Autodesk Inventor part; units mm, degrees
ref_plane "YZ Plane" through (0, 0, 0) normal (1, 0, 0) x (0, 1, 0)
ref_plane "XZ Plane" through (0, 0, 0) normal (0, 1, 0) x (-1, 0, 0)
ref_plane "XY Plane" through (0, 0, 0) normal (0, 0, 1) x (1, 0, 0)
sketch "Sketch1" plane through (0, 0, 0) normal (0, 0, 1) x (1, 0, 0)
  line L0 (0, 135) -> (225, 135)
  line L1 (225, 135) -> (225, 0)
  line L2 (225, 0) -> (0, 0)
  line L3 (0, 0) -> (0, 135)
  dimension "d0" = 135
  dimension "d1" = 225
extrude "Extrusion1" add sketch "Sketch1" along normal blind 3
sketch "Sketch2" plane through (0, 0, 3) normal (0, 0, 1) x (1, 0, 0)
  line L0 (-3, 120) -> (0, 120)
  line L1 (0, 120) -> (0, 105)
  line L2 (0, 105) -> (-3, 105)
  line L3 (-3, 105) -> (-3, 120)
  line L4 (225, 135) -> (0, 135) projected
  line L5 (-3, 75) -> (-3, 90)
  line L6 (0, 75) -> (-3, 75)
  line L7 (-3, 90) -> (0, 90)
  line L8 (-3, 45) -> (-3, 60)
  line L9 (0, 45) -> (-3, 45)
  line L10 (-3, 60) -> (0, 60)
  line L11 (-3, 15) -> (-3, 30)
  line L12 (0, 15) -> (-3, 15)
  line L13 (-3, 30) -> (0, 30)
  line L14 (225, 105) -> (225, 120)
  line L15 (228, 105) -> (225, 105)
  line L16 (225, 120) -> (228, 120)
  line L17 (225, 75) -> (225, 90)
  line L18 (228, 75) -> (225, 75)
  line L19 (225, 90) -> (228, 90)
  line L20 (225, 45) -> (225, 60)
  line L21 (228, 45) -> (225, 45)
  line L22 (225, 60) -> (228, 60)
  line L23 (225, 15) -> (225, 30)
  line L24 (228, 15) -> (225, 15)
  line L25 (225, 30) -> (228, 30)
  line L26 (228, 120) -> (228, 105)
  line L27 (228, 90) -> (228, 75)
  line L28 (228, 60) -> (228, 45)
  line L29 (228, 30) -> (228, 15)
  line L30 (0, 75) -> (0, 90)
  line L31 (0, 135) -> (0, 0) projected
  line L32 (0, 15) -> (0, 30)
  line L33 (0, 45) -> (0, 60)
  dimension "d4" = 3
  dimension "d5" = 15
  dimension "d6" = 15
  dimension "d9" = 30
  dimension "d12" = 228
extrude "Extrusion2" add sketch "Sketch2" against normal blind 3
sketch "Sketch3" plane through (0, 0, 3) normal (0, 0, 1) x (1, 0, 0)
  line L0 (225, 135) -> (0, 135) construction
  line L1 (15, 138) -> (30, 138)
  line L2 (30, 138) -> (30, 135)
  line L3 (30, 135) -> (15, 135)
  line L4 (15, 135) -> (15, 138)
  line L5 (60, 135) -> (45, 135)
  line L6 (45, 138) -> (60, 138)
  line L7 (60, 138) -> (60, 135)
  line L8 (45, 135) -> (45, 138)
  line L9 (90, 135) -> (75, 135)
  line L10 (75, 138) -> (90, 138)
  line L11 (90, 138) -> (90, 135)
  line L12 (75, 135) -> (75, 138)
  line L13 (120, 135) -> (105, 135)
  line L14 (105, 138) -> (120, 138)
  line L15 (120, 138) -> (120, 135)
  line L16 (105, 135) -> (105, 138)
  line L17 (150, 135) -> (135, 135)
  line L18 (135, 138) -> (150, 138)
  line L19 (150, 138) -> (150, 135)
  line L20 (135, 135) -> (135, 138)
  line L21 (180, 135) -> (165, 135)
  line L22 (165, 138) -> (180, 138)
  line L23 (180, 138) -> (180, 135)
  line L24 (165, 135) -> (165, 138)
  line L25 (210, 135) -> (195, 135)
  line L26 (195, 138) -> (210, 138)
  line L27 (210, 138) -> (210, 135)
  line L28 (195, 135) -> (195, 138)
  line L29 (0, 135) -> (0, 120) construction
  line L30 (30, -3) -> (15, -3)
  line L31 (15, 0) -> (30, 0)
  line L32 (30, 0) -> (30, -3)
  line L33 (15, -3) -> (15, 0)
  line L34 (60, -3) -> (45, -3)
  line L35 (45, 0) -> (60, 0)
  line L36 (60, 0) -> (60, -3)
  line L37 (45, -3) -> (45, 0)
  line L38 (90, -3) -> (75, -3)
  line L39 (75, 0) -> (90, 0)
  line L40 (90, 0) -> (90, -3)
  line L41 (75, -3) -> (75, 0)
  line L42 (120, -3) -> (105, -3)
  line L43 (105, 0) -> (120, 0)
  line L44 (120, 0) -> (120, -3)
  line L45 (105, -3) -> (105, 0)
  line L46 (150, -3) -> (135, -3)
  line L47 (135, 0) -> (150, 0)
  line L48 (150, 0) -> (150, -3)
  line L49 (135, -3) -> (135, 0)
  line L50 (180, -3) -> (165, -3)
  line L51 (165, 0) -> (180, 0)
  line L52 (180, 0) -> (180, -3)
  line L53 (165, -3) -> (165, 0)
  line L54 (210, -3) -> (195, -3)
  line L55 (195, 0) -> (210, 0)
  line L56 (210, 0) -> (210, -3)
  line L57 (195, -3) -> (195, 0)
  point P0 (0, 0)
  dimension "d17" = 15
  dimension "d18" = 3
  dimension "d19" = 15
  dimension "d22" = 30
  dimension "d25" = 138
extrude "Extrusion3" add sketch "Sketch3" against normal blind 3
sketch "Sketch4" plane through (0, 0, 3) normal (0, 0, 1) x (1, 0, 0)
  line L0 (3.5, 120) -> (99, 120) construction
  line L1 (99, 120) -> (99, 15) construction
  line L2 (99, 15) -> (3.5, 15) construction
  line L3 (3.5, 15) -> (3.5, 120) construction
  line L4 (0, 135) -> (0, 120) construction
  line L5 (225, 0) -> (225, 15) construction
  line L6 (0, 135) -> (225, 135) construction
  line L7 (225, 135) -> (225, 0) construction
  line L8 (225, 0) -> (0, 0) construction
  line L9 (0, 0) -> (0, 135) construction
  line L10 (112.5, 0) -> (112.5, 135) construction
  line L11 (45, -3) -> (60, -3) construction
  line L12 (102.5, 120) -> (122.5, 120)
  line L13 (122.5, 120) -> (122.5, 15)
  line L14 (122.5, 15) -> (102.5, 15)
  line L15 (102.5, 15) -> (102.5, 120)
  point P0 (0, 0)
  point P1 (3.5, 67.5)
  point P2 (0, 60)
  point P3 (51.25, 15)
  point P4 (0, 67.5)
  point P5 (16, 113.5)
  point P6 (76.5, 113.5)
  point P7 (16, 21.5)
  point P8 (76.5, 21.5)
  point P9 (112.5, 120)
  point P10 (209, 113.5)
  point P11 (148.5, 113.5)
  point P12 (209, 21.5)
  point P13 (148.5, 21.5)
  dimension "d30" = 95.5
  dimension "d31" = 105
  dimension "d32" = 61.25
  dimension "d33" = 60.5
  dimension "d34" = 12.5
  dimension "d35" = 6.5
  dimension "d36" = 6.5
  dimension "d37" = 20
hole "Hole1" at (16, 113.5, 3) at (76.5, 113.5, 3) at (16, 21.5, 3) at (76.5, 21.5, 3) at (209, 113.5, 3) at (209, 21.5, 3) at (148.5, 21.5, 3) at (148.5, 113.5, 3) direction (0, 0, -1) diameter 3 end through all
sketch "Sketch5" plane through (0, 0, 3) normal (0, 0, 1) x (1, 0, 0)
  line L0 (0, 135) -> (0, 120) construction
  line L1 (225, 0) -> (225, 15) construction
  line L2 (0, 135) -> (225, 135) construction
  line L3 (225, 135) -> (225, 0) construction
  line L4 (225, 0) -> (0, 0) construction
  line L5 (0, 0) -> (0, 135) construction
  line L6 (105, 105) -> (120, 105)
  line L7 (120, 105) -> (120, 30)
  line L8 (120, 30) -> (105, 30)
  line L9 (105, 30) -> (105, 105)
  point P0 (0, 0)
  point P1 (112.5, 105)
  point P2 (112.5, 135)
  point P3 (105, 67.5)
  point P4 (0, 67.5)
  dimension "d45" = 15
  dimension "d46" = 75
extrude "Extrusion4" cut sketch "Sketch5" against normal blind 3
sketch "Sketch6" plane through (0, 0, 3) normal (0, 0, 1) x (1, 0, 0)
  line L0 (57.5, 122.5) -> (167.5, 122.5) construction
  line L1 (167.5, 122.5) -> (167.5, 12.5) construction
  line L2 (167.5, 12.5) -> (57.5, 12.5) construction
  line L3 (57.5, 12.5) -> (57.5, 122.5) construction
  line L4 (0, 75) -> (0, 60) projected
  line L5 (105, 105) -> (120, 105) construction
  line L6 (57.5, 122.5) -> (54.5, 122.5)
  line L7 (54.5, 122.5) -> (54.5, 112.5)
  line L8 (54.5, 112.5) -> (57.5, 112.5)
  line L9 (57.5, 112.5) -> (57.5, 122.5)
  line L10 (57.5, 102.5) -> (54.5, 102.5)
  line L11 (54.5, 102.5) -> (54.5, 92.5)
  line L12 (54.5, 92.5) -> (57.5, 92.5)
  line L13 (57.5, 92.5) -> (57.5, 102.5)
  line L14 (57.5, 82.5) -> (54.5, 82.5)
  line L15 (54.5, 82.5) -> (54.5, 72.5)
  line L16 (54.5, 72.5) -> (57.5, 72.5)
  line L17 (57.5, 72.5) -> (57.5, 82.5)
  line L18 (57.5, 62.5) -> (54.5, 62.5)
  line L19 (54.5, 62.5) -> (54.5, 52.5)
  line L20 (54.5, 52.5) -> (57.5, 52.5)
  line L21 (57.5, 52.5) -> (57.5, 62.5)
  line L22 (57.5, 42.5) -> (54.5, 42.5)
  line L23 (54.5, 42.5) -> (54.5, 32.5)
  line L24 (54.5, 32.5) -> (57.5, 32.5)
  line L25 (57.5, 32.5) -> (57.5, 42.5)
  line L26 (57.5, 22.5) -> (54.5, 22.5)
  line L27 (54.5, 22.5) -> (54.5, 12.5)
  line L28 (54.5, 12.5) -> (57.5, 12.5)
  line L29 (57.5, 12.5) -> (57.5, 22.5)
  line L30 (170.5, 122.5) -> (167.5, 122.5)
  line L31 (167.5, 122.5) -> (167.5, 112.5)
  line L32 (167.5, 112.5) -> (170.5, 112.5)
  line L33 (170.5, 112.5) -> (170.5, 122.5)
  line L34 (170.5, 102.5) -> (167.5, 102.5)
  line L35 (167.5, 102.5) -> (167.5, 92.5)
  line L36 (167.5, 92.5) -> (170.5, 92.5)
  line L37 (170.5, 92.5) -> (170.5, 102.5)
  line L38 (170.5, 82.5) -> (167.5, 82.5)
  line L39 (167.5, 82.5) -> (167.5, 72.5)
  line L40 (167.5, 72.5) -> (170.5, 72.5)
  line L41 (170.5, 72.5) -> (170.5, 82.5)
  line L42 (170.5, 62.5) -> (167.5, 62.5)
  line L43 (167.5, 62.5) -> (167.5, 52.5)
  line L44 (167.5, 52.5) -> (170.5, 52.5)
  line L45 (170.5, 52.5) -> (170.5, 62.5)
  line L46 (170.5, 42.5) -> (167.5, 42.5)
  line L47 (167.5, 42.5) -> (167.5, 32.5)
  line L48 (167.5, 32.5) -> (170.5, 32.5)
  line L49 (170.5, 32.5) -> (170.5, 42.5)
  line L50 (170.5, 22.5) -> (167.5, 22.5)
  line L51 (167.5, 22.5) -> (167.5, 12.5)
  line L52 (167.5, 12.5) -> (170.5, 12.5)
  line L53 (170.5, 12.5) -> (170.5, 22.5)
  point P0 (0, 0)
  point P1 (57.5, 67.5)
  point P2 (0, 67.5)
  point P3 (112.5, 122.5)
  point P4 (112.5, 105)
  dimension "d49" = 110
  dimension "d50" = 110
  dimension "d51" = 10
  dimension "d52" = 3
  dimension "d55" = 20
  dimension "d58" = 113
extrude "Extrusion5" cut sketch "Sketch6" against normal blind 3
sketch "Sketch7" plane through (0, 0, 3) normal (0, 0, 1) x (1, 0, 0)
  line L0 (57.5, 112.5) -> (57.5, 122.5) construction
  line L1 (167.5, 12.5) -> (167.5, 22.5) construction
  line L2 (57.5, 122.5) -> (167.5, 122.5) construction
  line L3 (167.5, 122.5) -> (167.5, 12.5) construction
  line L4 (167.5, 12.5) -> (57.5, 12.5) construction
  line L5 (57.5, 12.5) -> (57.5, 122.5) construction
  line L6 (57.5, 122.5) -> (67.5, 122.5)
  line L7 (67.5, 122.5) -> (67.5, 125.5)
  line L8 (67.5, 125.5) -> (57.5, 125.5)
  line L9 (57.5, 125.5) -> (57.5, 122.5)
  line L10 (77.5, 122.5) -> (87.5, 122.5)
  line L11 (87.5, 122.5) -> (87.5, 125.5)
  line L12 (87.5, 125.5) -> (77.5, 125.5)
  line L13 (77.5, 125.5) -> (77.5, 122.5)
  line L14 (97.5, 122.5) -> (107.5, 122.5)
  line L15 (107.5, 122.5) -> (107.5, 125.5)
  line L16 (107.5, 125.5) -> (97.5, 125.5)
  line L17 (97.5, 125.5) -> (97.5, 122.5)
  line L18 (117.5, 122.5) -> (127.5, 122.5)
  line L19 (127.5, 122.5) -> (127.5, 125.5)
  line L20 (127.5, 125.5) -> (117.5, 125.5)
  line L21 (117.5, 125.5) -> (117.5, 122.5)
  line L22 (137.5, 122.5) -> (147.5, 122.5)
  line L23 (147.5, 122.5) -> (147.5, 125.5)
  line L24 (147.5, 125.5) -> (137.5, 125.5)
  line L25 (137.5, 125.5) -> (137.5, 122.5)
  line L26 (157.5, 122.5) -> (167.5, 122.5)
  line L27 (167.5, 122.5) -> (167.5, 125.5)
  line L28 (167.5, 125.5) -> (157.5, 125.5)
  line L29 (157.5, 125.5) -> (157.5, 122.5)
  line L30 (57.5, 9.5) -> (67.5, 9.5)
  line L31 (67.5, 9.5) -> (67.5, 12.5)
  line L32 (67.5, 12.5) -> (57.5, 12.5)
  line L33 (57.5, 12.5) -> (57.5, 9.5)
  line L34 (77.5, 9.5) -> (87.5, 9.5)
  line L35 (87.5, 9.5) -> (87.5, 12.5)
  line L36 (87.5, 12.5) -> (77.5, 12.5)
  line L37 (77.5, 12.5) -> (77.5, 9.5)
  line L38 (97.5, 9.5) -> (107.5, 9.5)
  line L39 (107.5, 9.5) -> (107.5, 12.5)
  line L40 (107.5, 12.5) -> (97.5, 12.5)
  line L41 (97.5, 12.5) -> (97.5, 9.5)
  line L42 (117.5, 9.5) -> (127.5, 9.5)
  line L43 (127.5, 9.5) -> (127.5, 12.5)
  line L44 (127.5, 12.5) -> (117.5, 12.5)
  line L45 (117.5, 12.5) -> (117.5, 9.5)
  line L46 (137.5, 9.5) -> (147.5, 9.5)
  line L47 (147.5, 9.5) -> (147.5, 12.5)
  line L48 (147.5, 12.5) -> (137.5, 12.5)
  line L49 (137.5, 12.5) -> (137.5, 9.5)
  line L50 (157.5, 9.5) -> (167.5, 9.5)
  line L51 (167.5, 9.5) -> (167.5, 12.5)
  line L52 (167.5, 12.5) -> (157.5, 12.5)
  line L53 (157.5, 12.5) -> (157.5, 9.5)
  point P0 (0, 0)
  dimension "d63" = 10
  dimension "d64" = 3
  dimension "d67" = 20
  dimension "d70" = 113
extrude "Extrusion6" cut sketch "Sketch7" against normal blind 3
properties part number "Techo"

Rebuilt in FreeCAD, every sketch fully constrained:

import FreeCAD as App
import Part
import Sketcher
Q = App.Units.Quantity


def add_polygon(sketch, points):
    """Adds a closed chain of lines whose ends are joined by coincident constraints."""
    first, n = sketch.GeometryCount, len(points)
    for a, b in zip(points, points[1:] + points[:1]):
        sketch.addGeometry(Part.LineSegment(App.Vector(*a, 0), App.Vector(*b, 0)), False)
    for i in range(n):
        sketch.addConstraint(Sketcher.Constraint("Coincident", first + i, 2, first + (i + 1) % n, 1))

doc = App.newDocument("Part")
body = doc.addObject("PartDesign::Body", "Body")

# Sketch on XY plane
sketch1 = body.newObject("Sketcher::SketchObject", "Sketch")
sketch1.AttachmentSupport = (doc.getObject("XY_Plane"), [""])
sketch1.MapMode = "FlatFace"
add_polygon(sketch1, [(225, 135), (0, 135), (0, 0), (225, 0)])  # lines 0-3
sketch1.addConstraint(Sketcher.Constraint("Horizontal", 0))
sketch1.addConstraint(Sketcher.Constraint("Vertical", 1))
sketch1.addConstraint(Sketcher.Constraint("Horizontal", 2))
sketch1.addConstraint(Sketcher.Constraint("Vertical", 3))
sketch1.addConstraint(Sketcher.Constraint("Coincident", 1, 2, -1, 1))
sketch1.addConstraint(Sketcher.Constraint("DistanceX", 0, 2, 0, 1, Q("225 mm")))
sketch1.addConstraint(Sketcher.Constraint("DistanceY", 1, 2, 1, 1, Q("135 mm")))
pad1 = body.newObject("PartDesign::Pad", "Pad")
pad1.Profile = sketch1
pad1.Length = 3

# Sketch on XY plane
sketch2 = body.newObject("Sketcher::SketchObject", "Sketch001")
sketch2.AttachmentSupport = (doc.getObject("XY_Plane"), [""])
sketch2.MapMode = "FlatFace"
sketch2.AttachmentOffset = App.Placement(App.Vector(0, 0, 3), App.Rotation())
add_polygon(sketch2, [(0, 15), (0, 30), (-3, 30), (-3, 15)])  # lines 0-3
add_polygon(sketch2, [(0, 45), (0, 60), (-3, 60), (-3, 45)])  # lines 4-7
add_polygon(sketch2, [(0, 75), (0, 90), (-3, 90), (-3, 75)])  # lines 8-11
add_polygon(sketch2, [(0, 120), (-3, 120), (-3, 105), (0, 105)])  # lines 12-15
add_polygon(sketch2, [(225, 120), (225, 105), (228, 105), (228, 120)])  # lines 16-19
add_polygon(sketch2, [(225, 90), (225, 75), (228, 75), (228, 90)])  # lines 20-23
add_polygon(sketch2, [(225, 60), (225, 45), (228, 45), (228, 60)])  # lines 24-27
add_polygon(sketch2, [(225, 30), (225, 15), (228, 15), (228, 30)])  # lines 28-31
sketch2.addConstraint(Sketcher.Constraint("Vertical", 0))
sketch2.addConstraint(Sketcher.Constraint("Horizontal", 1))
sketch2.addConstraint(Sketcher.Constraint("Vertical", 2))
sketch2.addConstraint(Sketcher.Constraint("Horizontal", 3))
sketch2.addConstraint(Sketcher.Constraint("Vertical", 4))
sketch2.addConstraint(Sketcher.Constraint("Horizontal", 5))
sketch2.addConstraint(Sketcher.Constraint("Vertical", 6))
sketch2.addConstraint(Sketcher.Constraint("Horizontal", 7))
sketch2.addConstraint(Sketcher.Constraint("Vertical", 8))
sketch2.addConstraint(Sketcher.Constraint("Horizontal", 9))
sketch2.addConstraint(Sketcher.Constraint("Vertical", 10))
sketch2.addConstraint(Sketcher.Constraint("Horizontal", 11))
sketch2.addConstraint(Sketcher.Constraint("Horizontal", 12))
sketch2.addConstraint(Sketcher.Constraint("Vertical", 13))
sketch2.addConstraint(Sketcher.Constraint("Horizontal", 14))
sketch2.addConstraint(Sketcher.Constraint("Vertical", 15))
sketch2.addConstraint(Sketcher.Constraint("Vertical", 16))
sketch2.addConstraint(Sketcher.Constraint("Horizontal", 17))
sketch2.addConstraint(Sketcher.Constraint("Vertical", 18))
sketch2.addConstraint(Sketcher.Constraint("Horizontal", 19))
sketch2.addConstraint(Sketcher.Constraint("Vertical", 20))
sketch2.addConstraint(Sketcher.Constraint("Horizontal", 21))
sketch2.addConstraint(Sketcher.Constraint("Vertical", 22))
sketch2.addConstraint(Sketcher.Constraint("Horizontal", 23))
sketch2.addConstraint(Sketcher.Constraint("Vertical", 24))
sketch2.addConstraint(Sketcher.Constraint("Horizontal", 25))
sketch2.addConstraint(Sketcher.Constraint("Vertical", 26))
sketch2.addConstraint(Sketcher.Constraint("Horizontal", 27))
sketch2.addConstraint(Sketcher.Constraint("Vertical", 28))
sketch2.addConstraint(Sketcher.Constraint("Horizontal", 29))
sketch2.addConstraint(Sketcher.Constraint("Vertical", 30))
sketch2.addConstraint(Sketcher.Constraint("Horizontal", 31))
sketch2.addConstraint(Sketcher.Constraint("PointOnObject", 0, 2, -2))
sketch2.addConstraint(Sketcher.Constraint("PointOnObject", 4, 2, -2))
sketch2.addConstraint(Sketcher.Constraint("PointOnObject", 8, 2, -2))
sketch2.addConstraint(Sketcher.Constraint("PointOnObject", 14, 2, -2))
sketch2.addConstraint(Sketcher.Constraint("Horizontal", 14, 2, 16, 2))
sketch2.addConstraint(Sketcher.Constraint("Horizontal", 15, 2, 18, 2))
sketch2.addConstraint(Sketcher.Constraint("Horizontal", 11, 2, 20, 2))
sketch2.addConstraint(Sketcher.Constraint("Horizontal", 9, 2, 22, 2))
sketch2.addConstraint(Sketcher.Constraint("Horizontal", 7, 2, 24, 2))
sketch2.addConstraint(Sketcher.Constraint("Horizontal", 5, 2, 26, 2))
sketch2.addConstraint(Sketcher.Constraint("Horizontal", 3, 2, 28, 2))
sketch2.addConstraint(Sketcher.Constraint("Horizontal", 1, 2, 30, 2))
sketch2.addConstraint(Sketcher.Constraint("Vertical", 2, 2, 5, 2))
sketch2.addConstraint(Sketcher.Constraint("Vertical", 6, 2, 9, 2))
sketch2.addConstraint(Sketcher.Constraint("Vertical", 10, 2, 12, 2))
sketch2.addConstraint(Sketcher.Constraint("Vertical", 19, 2, 20, 2))
sketch2.addConstraint(Sketcher.Constraint("Vertical", 18, 2, 21, 2))
sketch2.addConstraint(Sketcher.Constraint("Vertical", 23, 2, 24, 2))
sketch2.addConstraint(Sketcher.Constraint("Vertical", 22, 2, 25, 2))
sketch2.addConstraint(Sketcher.Constraint("Vertical", 27, 2, 28, 2))
sketch2.addConstraint(Sketcher.Constraint("Vertical", 26, 2, 29, 2))
sketch2.addConstraint(Sketcher.Constraint("Equal", 14, 17))
sketch2.addConstraint(Sketcher.Constraint("Equal", 2, 4))
sketch2.addConstraint(Sketcher.Constraint("Equal", 6, 8))
sketch2.addConstraint(Sketcher.Constraint("Equal", 10, 13))
sketch2.addConstraint(Sketcher.Constraint("DistanceX", 1, 2, 1, 1, Q("3 mm")))
sketch2.addConstraint(Sketcher.Constraint("DistanceY", 0, 1, 0, 2, Q("15 mm")))
sketch2.addConstraint(Sketcher.Constraint("DistanceY", -1, 1, 0, 2, Q("30 mm")))
sketch2.addConstraint(Sketcher.Constraint("DistanceX", -1, 1, 17, 2, Q("228 mm")))
sketch2.addConstraint(Sketcher.Constraint("DistanceY", 0, 2, 4, 2, Q("30 mm")))
sketch2.addConstraint(Sketcher.Constraint("DistanceY", 4, 2, 8, 2, Q("30 mm")))
sketch2.addConstraint(Sketcher.Constraint("DistanceY", 9, 2, 12, 2, Q("30 mm")))
pad2 = body.newObject("PartDesign::Pad", "Pad001")
pad2.Profile = sketch2
pad2.Length = 3
pad2.Reversed = True

# Sketch on XY plane
sketch3 = body.newObject("Sketcher::SketchObject", "Sketch002")
sketch3.AttachmentSupport = (doc.getObject("XY_Plane"), [""])
sketch3.MapMode = "FlatFace"
sketch3.AttachmentOffset = App.Placement(App.Vector(0, 0, 3), App.Rotation())
add_polygon(sketch3, [(30, 138), (15, 138), (15, 135), (30, 135)])  # lines 0-3
add_polygon(sketch3, [(45, 135), (60, 135), (60, 138), (45, 138)])  # lines 4-7
add_polygon(sketch3, [(75, 135), (90, 135), (90, 138), (75, 138)])  # lines 8-11
add_polygon(sketch3, [(105, 135), (120, 135), (120, 138), (105, 138)])  # lines 12-15
add_polygon(sketch3, [(135, 135), (150, 135), (150, 138), (135, 138)])  # lines 16-19
add_polygon(sketch3, [(165, 135), (180, 135), (180, 138), (165, 138)])  # lines 20-23
add_polygon(sketch3, [(195, 135), (210, 135), (210, 138), (195, 138)])  # lines 24-27
add_polygon(sketch3, [(15, -3), (30, -3), (30, 0), (15, 0)])  # lines 28-31
add_polygon(sketch3, [(45, -3), (60, -3), (60, 0), (45, 0)])  # lines 32-35
add_polygon(sketch3, [(75, -3), (90, -3), (90, 0), (75, 0)])  # lines 36-39
add_polygon(sketch3, [(105, -3), (120, -3), (120, 0), (105, 0)])  # lines 40-43
add_polygon(sketch3, [(135, -3), (150, -3), (150, 0), (135, 0)])  # lines 44-47
add_polygon(sketch3, [(165, -3), (180, -3), (180, 0), (165, 0)])  # lines 48-51
add_polygon(sketch3, [(195, -3), (210, -3), (210, 0), (195, 0)])  # lines 52-55
sketch3.addConstraint(Sketcher.Constraint("Horizontal", 0))
sketch3.addConstraint(Sketcher.Constraint("Vertical", 1))
sketch3.addConstraint(Sketcher.Constraint("Horizontal", 2))
sketch3.addConstraint(Sketcher.Constraint("Vertical", 3))
sketch3.addConstraint(Sketcher.Constraint("Horizontal", 4))
sketch3.addConstraint(Sketcher.Constraint("Vertical", 5))
sketch3.addConstraint(Sketcher.Constraint("Horizontal", 6))
sketch3.addConstraint(Sketcher.Constraint("Vertical", 7))
sketch3.addConstraint(Sketcher.Constraint("Horizontal", 8))
sketch3.addConstraint(Sketcher.Constraint("Vertical", 9))
sketch3.addConstraint(Sketcher.Constraint("Horizontal", 10))
sketch3.addConstraint(Sketcher.Constraint("Vertical", 11))
sketch3.addConstraint(Sketcher.Constraint("Horizontal", 12))
sketch3.addConstraint(Sketcher.Constraint("Vertical", 13))
sketch3.addConstraint(Sketcher.Constraint("Horizontal", 14))
sketch3.addConstraint(Sketcher.Constraint("Vertical", 15))
sketch3.addConstraint(Sketcher.Constraint("Horizontal", 16))
sketch3.addConstraint(Sketcher.Constraint("Vertical", 17))
sketch3.addConstraint(Sketcher.Constraint("Horizontal", 18))
sketch3.addConstraint(Sketcher.Constraint("Vertical", 19))
sketch3.addConstraint(Sketcher.Constraint("Horizontal", 20))
sketch3.addConstraint(Sketcher.Constraint("Vertical", 21))
sketch3.addConstraint(Sketcher.Constraint("Horizontal", 22))
sketch3.addConstraint(Sketcher.Constraint("Vertical", 23))
sketch3.addConstraint(Sketcher.Constraint("Horizontal", 24))
sketch3.addConstraint(Sketcher.Constraint("Vertical", 25))
sketch3.addConstraint(Sketcher.Constraint("Horizontal", 26))
sketch3.addConstraint(Sketcher.Constraint("Vertical", 27))
sketch3.addConstraint(Sketcher.Constraint("Horizontal", 28))
sketch3.addConstraint(Sketcher.Constraint("Vertical", 29))
sketch3.addConstraint(Sketcher.Constraint("Horizontal", 30))
sketch3.addConstraint(Sketcher.Constraint("Vertical", 31))
sketch3.addConstraint(Sketcher.Constraint("Horizontal", 32))
sketch3.addConstraint(Sketcher.Constraint("Vertical", 33))
sketch3.addConstraint(Sketcher.Constraint("Horizontal", 34))
sketch3.addConstraint(Sketcher.Constraint("Vertical", 35))
sketch3.addConstraint(Sketcher.Constraint("Horizontal", 36))
sketch3.addConstraint(Sketcher.Constraint("Vertical", 37))
sketch3.addConstraint(Sketcher.Constraint("Horizontal", 38))
sketch3.addConstraint(Sketcher.Constraint("Vertical", 39))
sketch3.addConstraint(Sketcher.Constraint("Horizontal", 40))
sketch3.addConstraint(Sketcher.Constraint("Vertical", 41))
sketch3.addConstraint(Sketcher.Constraint("Horizontal", 42))
sketch3.addConstraint(Sketcher.Constraint("Vertical", 43))
sketch3.addConstraint(Sketcher.Constraint("Horizontal", 44))
sketch3.addConstraint(Sketcher.Constraint("Vertical", 45))
sketch3.addConstraint(Sketcher.Constraint("Horizontal", 46))
sketch3.addConstraint(Sketcher.Constraint("Vertical", 47))
sketch3.addConstraint(Sketcher.Constraint("Horizontal", 48))
sketch3.addConstraint(Sketcher.Constraint("Vertical", 49))
sketch3.addConstraint(Sketcher.Constraint("Horizontal", 50))
sketch3.addConstraint(Sketcher.Constraint("Vertical", 51))
sketch3.addConstraint(Sketcher.Constraint("Horizontal", 52))
sketch3.addConstraint(Sketcher.Constraint("Vertical", 53))
sketch3.addConstraint(Sketcher.Constraint("Horizontal", 54))
sketch3.addConstraint(Sketcher.Constraint("Vertical", 55))
sketch3.addConstraint(Sketcher.Constraint("PointOnObject", 29, 2, -1))
sketch3.addConstraint(Sketcher.Constraint("PointOnObject", 33, 2, -1))
sketch3.addConstraint(Sketcher.Constraint("PointOnObject", 37, 2, -1))
sketch3.addConstraint(Sketcher.Constraint("PointOnObject", 41, 2, -1))
sketch3.addConstraint(Sketcher.Constraint("PointOnObject", 45, 2, -1))
sketch3.addConstraint(Sketcher.Constraint("PointOnObject", 49, 2, -1))
sketch3.addConstraint(Sketcher.Constraint("PointOnObject", 53, 2, -1))
sketch3.addConstraint(Sketcher.Constraint("Horizontal", 2, 2, 4, 2))
sketch3.addConstraint(Sketcher.Constraint("Horizontal", 3, 2, 5, 2))
sketch3.addConstraint(Sketcher.Constraint("Horizontal", 7, 2, 8, 2))
sketch3.addConstraint(Sketcher.Constraint("Horizontal", 6, 2, 9, 2))
sketch3.addConstraint(Sketcher.Constraint("Horizontal", 11, 2, 12, 2))
sketch3.addConstraint(Sketcher.Constraint("Horizontal", 10, 2, 13, 2))
sketch3.addConstraint(Sketcher.Constraint("Horizontal", 15, 2, 16, 2))
sketch3.addConstraint(Sketcher.Constraint("Horizontal", 14, 2, 17, 2))
sketch3.addConstraint(Sketcher.Constraint("Horizontal", 19, 2, 20, 2))
sketch3.addConstraint(Sketcher.Constraint("Horizontal", 18, 2, 21, 2))
sketch3.addConstraint(Sketcher.Constraint("Horizontal", 23, 2, 24, 2))
sketch3.addConstraint(Sketcher.Constraint("Horizontal", 22, 2, 25, 2))
sketch3.addConstraint(Sketcher.Constraint("Horizontal", 31, 2, 32, 2))
sketch3.addConstraint(Sketcher.Constraint("Horizontal", 35, 2, 36, 2))
sketch3.addConstraint(Sketcher.Constraint("Horizontal", 39, 2, 40, 2))
sketch3.addConstraint(Sketcher.Constraint("Horizontal", 43, 2, 44, 2))
sketch3.addConstraint(Sketcher.Constraint("Horizontal", 47, 2, 48, 2))
sketch3.addConstraint(Sketcher.Constraint("Horizontal", 51, 2, 52, 2))
sketch3.addConstraint(Sketcher.Constraint("Vertical", 3, 2, 28, 2))
sketch3.addConstraint(Sketcher.Constraint("Vertical", 1, 2, 30, 2))
sketch3.addConstraint(Sketcher.Constraint("Vertical", 5, 2, 32, 2))
sketch3.addConstraint(Sketcher.Constraint("Vertical", 7, 2, 34, 2))
sketch3.addConstraint(Sketcher.Constraint("Vertical", 9, 2, 36, 2))
sketch3.addConstraint(Sketcher.Constraint("Vertical", 11, 2, 38, 2))
sketch3.addConstraint(Sketcher.Constraint("Vertical", 13, 2, 40, 2))
sketch3.addConstraint(Sketcher.Constraint("Vertical", 15, 2, 42, 2))
sketch3.addConstraint(Sketcher.Constraint("Vertical", 17, 2, 44, 2))
sketch3.addConstraint(Sketcher.Constraint("Vertical", 19, 2, 46, 2))
sketch3.addConstraint(Sketcher.Constraint("Vertical", 21, 2, 48, 2))
sketch3.addConstraint(Sketcher.Constraint("Vertical", 23, 2, 50, 2))
sketch3.addConstraint(Sketcher.Constraint("Vertical", 25, 2, 52, 2))
sketch3.addConstraint(Sketcher.Constraint("Vertical", 27, 2, 54, 2))
sketch3.addConstraint(Sketcher.Constraint("Equal", 2, 4))
sketch3.addConstraint(Sketcher.Constraint("Equal", 6, 8))
sketch3.addConstraint(Sketcher.Constraint("Equal", 10, 12))
sketch3.addConstraint(Sketcher.Constraint("Equal", 14, 16))
sketch3.addConstraint(Sketcher.Constraint("Equal", 18, 20))
sketch3.addConstraint(Sketcher.Constraint("Equal", 22, 24))
sketch3.addConstraint(Sketcher.Constraint("Equal", 27, 29))
sketch3.addConstraint(Sketcher.Constraint("DistanceX", 0, 2, 0, 1, Q("15 mm")))
sketch3.addConstraint(Sketcher.Constraint("DistanceY", 1, 2, 1, 1, Q("3 mm")))
sketch3.addConstraint(Sketcher.Constraint("DistanceX", -1, 1, 0, 2, Q("15 mm")))
sketch3.addConstraint(Sketcher.Constraint("DistanceY", -1, 1, 0, 2, Q("138 mm")))
sketch3.addConstraint(Sketcher.Constraint("DistanceX", 2, 2, 4, 2, Q("30 mm")))
sketch3.addConstraint(Sketcher.Constraint("DistanceX", 4, 2, 8, 2, Q("30 mm")))
sketch3.addConstraint(Sketcher.Constraint("DistanceX", 8, 2, 12, 2, Q("30 mm")))
sketch3.addConstraint(Sketcher.Constraint("DistanceX", 12, 2, 16, 2, Q("30 mm")))
sketch3.addConstraint(Sketcher.Constraint("DistanceX", 16, 2, 20, 2, Q("30 mm")))
sketch3.addConstraint(Sketcher.Constraint("DistanceX", 20, 2, 24, 2, Q("30 mm")))
pad3 = body.newObject("PartDesign::Pad", "Pad002")
pad3.Profile = sketch3
pad3.Length = 3
pad3.Reversed = True

# Sketch on XY plane
sketch4 = body.newObject("Sketcher::SketchObject", "Sketch003")
sketch4.AttachmentSupport = (doc.getObject("XY_Plane"), [""])
sketch4.MapMode = "FlatFace"
sketch4.AttachmentOffset = App.Placement(App.Vector(0, 0, 3), App.Rotation())
sketch4.addGeometry(Part.Circle(App.Vector(16, 113.5, 0), App.Vector(0, 0, 1), 1.5), False)
sketch4.addGeometry(Part.Circle(App.Vector(76.5, 113.5, 0), App.Vector(0, 0, 1), 1.5), False)
sketch4.addGeometry(Part.Circle(App.Vector(16, 21.5, 0), App.Vector(0, 0, 1), 1.5), False)
sketch4.addGeometry(Part.Circle(App.Vector(76.5, 21.5, 0), App.Vector(0, 0, 1), 1.5), False)
sketch4.addGeometry(Part.Circle(App.Vector(209, 113.5, 0), App.Vector(0, 0, 1), 1.5), False)
sketch4.addGeometry(Part.Circle(App.Vector(209, 21.5, 0), App.Vector(0, 0, 1), 1.5), False)
sketch4.addGeometry(Part.Circle(App.Vector(148.5, 21.5, 0), App.Vector(0, 0, 1), 1.5), False)
sketch4.addGeometry(Part.Circle(App.Vector(148.5, 113.5, 0), App.Vector(0, 0, 1), 1.5), False)
sketch4.addConstraint(Sketcher.Constraint("Equal", 0, 1))
sketch4.addConstraint(Sketcher.Constraint("Equal", 1, 2))
sketch4.addConstraint(Sketcher.Constraint("Equal", 2, 3))
sketch4.addConstraint(Sketcher.Constraint("Equal", 3, 4))
sketch4.addConstraint(Sketcher.Constraint("Equal", 4, 5))
sketch4.addConstraint(Sketcher.Constraint("Equal", 5, 6))
sketch4.addConstraint(Sketcher.Constraint("Equal", 6, 7))
sketch4.addConstraint(Sketcher.Constraint("Horizontal", 0, 3, 1, 3))
sketch4.addConstraint(Sketcher.Constraint("Horizontal", 2, 3, 3, 3))
sketch4.addConstraint(Sketcher.Constraint("Horizontal", 1, 3, 4, 3))
sketch4.addConstraint(Sketcher.Constraint("Horizontal", 3, 3, 5, 3))
sketch4.addConstraint(Sketcher.Constraint("Horizontal", 5, 3, 6, 3))
sketch4.addConstraint(Sketcher.Constraint("Horizontal", 4, 3, 7, 3))
sketch4.addConstraint(Sketcher.Constraint("Vertical", 0, 3, 2, 3))
sketch4.addConstraint(Sketcher.Constraint("Vertical", 1, 3, 3, 3))
sketch4.addConstraint(Sketcher.Constraint("Vertical", 4, 3, 5, 3))
sketch4.addConstraint(Sketcher.Constraint("Vertical", 6, 3, 7, 3))
sketch4.addConstraint(Sketcher.Constraint("Diameter", 0, Q("3 mm")))
sketch4.addConstraint(Sketcher.Constraint("DistanceX", -1, 1, 0, 3, Q("16 mm")))
sketch4.addConstraint(Sketcher.Constraint("DistanceX", -1, 1, 4, 3, Q("209 mm")))
sketch4.addConstraint(Sketcher.Constraint("DistanceY", 2, 3, 0, 3, Q("92 mm")))
sketch4.addConstraint(Sketcher.Constraint("DistanceX", 3, 3, 6, 3, Q("72 mm")))
sketch4.addConstraint(Sketcher.Constraint("DistanceY", -1, 1, 0, 3, Q("113.5 mm")))
sketch4.addConstraint(Sketcher.Constraint("DistanceX", -1, 1, 1, 3, Q("76.5 mm")))
doc.recompute()
hole = body.newObject("PartDesign::Hole", "Hole")
hole.Profile = sketch4
hole.ThreadType = "None"
hole.Diameter = 3
hole.DepthType = "ThroughAll"

# Sketch on XY plane
sketch5 = body.newObject("Sketcher::SketchObject", "Sketch004")
sketch5.AttachmentSupport = (doc.getObject("XY_Plane"), [""])
sketch5.MapMode = "FlatFace"
sketch5.AttachmentOffset = App.Placement(App.Vector(0, 0, 3), App.Rotation())
add_polygon(sketch5, [(120, 105), (105, 105), (105, 30), (120, 30)])  # lines 0-3
sketch5.addConstraint(Sketcher.Constraint("Horizontal", 0))
sketch5.addConstraint(Sketcher.Constraint("Vertical", 1))
sketch5.addConstraint(Sketcher.Constraint("Horizontal", 2))
sketch5.addConstraint(Sketcher.Constraint("Vertical", 3))
sketch5.addConstraint(Sketcher.Constraint("DistanceX", 0, 2, 0, 1, Q("15 mm")))
sketch5.addConstraint(Sketcher.Constraint("DistanceY", 1, 2, 1, 1, Q("75 mm")))
sketch5.addConstraint(Sketcher.Constraint("DistanceX", -1, 1, 0, 2, Q("105 mm")))
sketch5.addConstraint(Sketcher.Constraint("DistanceY", -1, 1, 0, 2, Q("105 mm")))
pocket1 = body.newObject("PartDesign::Pocket", "Pocket")
pocket1.Profile = sketch5
pocket1.Length = 3

# Sketch on XY plane
sketch6 = body.newObject("Sketcher::SketchObject", "Sketch005")
sketch6.AttachmentSupport = (doc.getObject("XY_Plane"), [""])
sketch6.MapMode = "FlatFace"
sketch6.AttachmentOffset = App.Placement(App.Vector(0, 0, 3), App.Rotation())
add_polygon(sketch6, [(57.5, 112.5), (57.5, 122.5), (54.5, 122.5), (54.5, 112.5)])  # lines 0-3
add_polygon(sketch6, [(57.5, 92.5), (57.5, 102.5), (54.5, 102.5), (54.5, 92.5)])  # lines 4-7
add_polygon(sketch6, [(57.5, 72.5), (57.5, 82.5), (54.5, 82.5), (54.5, 72.5)])  # lines 8-11
add_polygon(sketch6, [(57.5, 52.5), (57.5, 62.5), (54.5, 62.5), (54.5, 52.5)])  # lines 12-15
add_polygon(sketch6, [(57.5, 32.5), (57.5, 42.5), (54.5, 42.5), (54.5, 32.5)])  # lines 16-19
add_polygon(sketch6, [(57.5, 12.5), (57.5, 22.5), (54.5, 22.5), (54.5, 12.5)])  # lines 20-23
add_polygon(sketch6, [(170.5, 112.5), (170.5, 122.5), (167.5, 122.5), (167.5, 112.5)])  # lines 24-27
add_polygon(sketch6, [(170.5, 92.5), (170.5, 102.5), (167.5, 102.5), (167.5, 92.5)])  # lines 28-31
add_polygon(sketch6, [(170.5, 72.5), (170.5, 82.5), (167.5, 82.5), (167.5, 72.5)])  # lines 32-35
add_polygon(sketch6, [(170.5, 52.5), (170.5, 62.5), (167.5, 62.5), (167.5, 52.5)])  # lines 36-39
add_polygon(sketch6, [(170.5, 32.5), (170.5, 42.5), (167.5, 42.5), (167.5, 32.5)])  # lines 40-43
add_polygon(sketch6, [(170.5, 12.5), (170.5, 22.5), (167.5, 22.5), (167.5, 12.5)])  # lines 44-47
sketch6.addConstraint(Sketcher.Constraint("Vertical", 0))
sketch6.addConstraint(Sketcher.Constraint("Horizontal", 1))
sketch6.addConstraint(Sketcher.Constraint("Vertical", 2))
sketch6.addConstraint(Sketcher.Constraint("Horizontal", 3))
sketch6.addConstraint(Sketcher.Constraint("Vertical", 4))
sketch6.addConstraint(Sketcher.Constraint("Horizontal", 5))
sketch6.addConstraint(Sketcher.Constraint("Vertical", 6))
sketch6.addConstraint(Sketcher.Constraint("Horizontal", 7))
sketch6.addConstraint(Sketcher.Constraint("Vertical", 8))
sketch6.addConstraint(Sketcher.Constraint("Horizontal", 9))
sketch6.addConstraint(Sketcher.Constraint("Vertical", 10))
sketch6.addConstraint(Sketcher.Constraint("Horizontal", 11))
sketch6.addConstraint(Sketcher.Constraint("Vertical", 12))
sketch6.addConstraint(Sketcher.Constraint("Horizontal", 13))
sketch6.addConstraint(Sketcher.Constraint("Vertical", 14))
sketch6.addConstraint(Sketcher.Constraint("Horizontal", 15))
sketch6.addConstraint(Sketcher.Constraint("Vertical", 16))
sketch6.addConstraint(Sketcher.Constraint("Horizontal", 17))
sketch6.addConstraint(Sketcher.Constraint("Vertical", 18))
sketch6.addConstraint(Sketcher.Constraint("Horizontal", 19))
sketch6.addConstraint(Sketcher.Constraint("Vertical", 20))
sketch6.addConstraint(Sketcher.Constraint("Horizontal", 21))
sketch6.addConstraint(Sketcher.Constraint("Vertical", 22))
sketch6.addConstraint(Sketcher.Constraint("Horizontal", 23))
sketch6.addConstraint(Sketcher.Constraint("Vertical", 24))
sketch6.addConstraint(Sketcher.Constraint("Horizontal", 25))
sketch6.addConstraint(Sketcher.Constraint("Vertical", 26))
sketch6.addConstraint(Sketcher.Constraint("Horizontal", 27))
sketch6.addConstraint(Sketcher.Constraint("Vertical", 28))
sketch6.addConstraint(Sketcher.Constraint("Horizontal", 29))
sketch6.addConstraint(Sketcher.Constraint("Vertical", 30))
sketch6.addConstraint(Sketcher.Constraint("Horizontal", 31))
sketch6.addConstraint(Sketcher.Constraint("Vertical", 32))
sketch6.addConstraint(Sketcher.Constraint("Horizontal", 33))
sketch6.addConstraint(Sketcher.Constraint("Vertical", 34))
sketch6.addConstraint(Sketcher.Constraint("Horizontal", 35))
sketch6.addConstraint(Sketcher.Constraint("Vertical", 36))
sketch6.addConstraint(Sketcher.Constraint("Horizontal", 37))
sketch6.addConstraint(Sketcher.Constraint("Vertical", 38))
sketch6.addConstraint(Sketcher.Constraint("Horizontal", 39))
sketch6.addConstraint(Sketcher.Constraint("Vertical", 40))
sketch6.addConstraint(Sketcher.Constraint("Horizontal", 41))
sketch6.addConstraint(Sketcher.Constraint("Vertical", 42))
sketch6.addConstraint(Sketcher.Constraint("Horizontal", 43))
sketch6.addConstraint(Sketcher.Constraint("Vertical", 44))
sketch6.addConstraint(Sketcher.Constraint("Horizontal", 45))
sketch6.addConstraint(Sketcher.Constraint("Vertical", 46))
sketch6.addConstraint(Sketcher.Constraint("Horizontal", 47))
sketch6.addConstraint(Sketcher.Constraint("Horizontal", 1, 2, 24, 2))
sketch6.addConstraint(Sketcher.Constraint("Horizontal", 3, 2, 26, 2))
sketch6.addConstraint(Sketcher.Constraint("Horizontal", 5, 2, 28, 2))
sketch6.addConstraint(Sketcher.Constraint("Horizontal", 7, 2, 30, 2))
sketch6.addConstraint(Sketcher.Constraint("Horizontal", 9, 2, 32, 2))
sketch6.addConstraint(Sketcher.Constraint("Horizontal", 11, 2, 34, 2))
sketch6.addConstraint(Sketcher.Constraint("Horizontal", 13, 2, 36, 2))
sketch6.addConstraint(Sketcher.Constraint("Horizontal", 15, 2, 38, 2))
sketch6.addConstraint(Sketcher.Constraint("Horizontal", 17, 2, 40, 2))
sketch6.addConstraint(Sketcher.Constraint("Horizontal", 19, 2, 42, 2))
sketch6.addConstraint(Sketcher.Constraint("Horizontal", 21, 2, 44, 2))
sketch6.addConstraint(Sketcher.Constraint("Horizontal", 23, 2, 46, 2))
sketch6.addConstraint(Sketcher.Constraint("Vertical", 3, 2, 4, 2))
sketch6.addConstraint(Sketcher.Constraint("Vertical", 2, 2, 5, 2))
sketch6.addConstraint(Sketcher.Constraint("Vertical", 7, 2, 8, 2))
sketch6.addConstraint(Sketcher.Constraint("Vertical", 6, 2, 9, 2))
sketch6.addConstraint(Sketcher.Constraint("Vertical", 11, 2, 12, 2))
sketch6.addConstraint(Sketcher.Constraint("Vertical", 10, 2, 13, 2))
sketch6.addConstraint(Sketcher.Constraint("Vertical", 15, 2, 16, 2))
sketch6.addConstraint(Sketcher.Constraint("Vertical", 14, 2, 17, 2))
sketch6.addConstraint(Sketcher.Constraint("Vertical", 19, 2, 20, 2))
sketch6.addConstraint(Sketcher.Constraint("Vertical", 18, 2, 21, 2))
sketch6.addConstraint(Sketcher.Constraint("Vertical", 27, 2, 28, 2))
sketch6.addConstraint(Sketcher.Constraint("Vertical", 26, 2, 29, 2))
sketch6.addConstraint(Sketcher.Constraint("Vertical", 31, 2, 32, 2))
sketch6.addConstraint(Sketcher.Constraint("Vertical", 30, 2, 33, 2))
sketch6.addConstraint(Sketcher.Constraint("Vertical", 35, 2, 36, 2))
sketch6.addConstraint(Sketcher.Constraint("Vertical", 34, 2, 37, 2))
sketch6.addConstraint(Sketcher.Constraint("Vertical", 39, 2, 40, 2))
sketch6.addConstraint(Sketcher.Constraint("Vertical", 38, 2, 41, 2))
sketch6.addConstraint(Sketcher.Constraint("Vertical", 43, 2, 44, 2))
sketch6.addConstraint(Sketcher.Constraint("Vertical", 42, 2, 45, 2))
sketch6.addConstraint(Sketcher.Constraint("Equal", 23, 25))
sketch6.addConstraint(Sketcher.Constraint("Equal", 2, 4))
sketch6.addConstraint(Sketcher.Constraint("Equal", 6, 8))
sketch6.addConstraint(Sketcher.Constraint("Equal", 10, 12))
sketch6.addConstraint(Sketcher.Constraint("Equal", 14, 16))
sketch6.addConstraint(Sketcher.Constraint("Equal", 18, 20))
sketch6.addConstraint(Sketcher.Constraint("DistanceX", 1, 2, 1, 1, Q("3 mm")))
sketch6.addConstraint(Sketcher.Constraint("DistanceY", 0, 1, 0, 2, Q("10 mm")))
sketch6.addConstraint(Sketcher.Constraint("DistanceY", 4, 2, 3, 2, Q("10 mm")))
sketch6.addConstraint(Sketcher.Constraint("DistanceY", 8, 2, 7, 2, Q("10 mm")))
sketch6.addConstraint(Sketcher.Constraint("DistanceY", 12, 2, 11, 2, Q("10 mm")))
sketch6.addConstraint(Sketcher.Constraint("DistanceY", 16, 2, 15, 2, Q("10 mm")))
sketch6.addConstraint(Sketcher.Constraint("DistanceY", 20, 2, 19, 2, Q("10 mm")))
sketch6.addConstraint(Sketcher.Constraint("DistanceX", 0, 2, 24, 2, Q("113 mm")))
sketch6.addConstraint(Sketcher.Constraint("DistanceX", -1, 1, 0, 2, Q("57.5 mm")))
sketch6.addConstraint(Sketcher.Constraint("DistanceY", -1, 1, 0, 2, Q("122.5 mm")))
pocket2 = body.newObject("PartDesign::Pocket", "Pocket001")
pocket2.Profile = sketch6
pocket2.Length = 3

# Sketch on XY plane
sketch7 = body.newObject("Sketcher::SketchObject", "Sketch006")
sketch7.AttachmentSupport = (doc.getObject("XY_Plane"), [""])
sketch7.MapMode = "FlatFace"
sketch7.AttachmentOffset = App.Placement(App.Vector(0, 0, 3), App.Rotation())
add_polygon(sketch7, [(57.5, 125.5), (57.5, 122.5), (67.5, 122.5), (67.5, 125.5)])  # lines 0-3
add_polygon(sketch7, [(77.5, 125.5), (77.5, 122.5), (87.5, 122.5), (87.5, 125.5)])  # lines 4-7
add_polygon(sketch7, [(97.5, 125.5), (97.5, 122.5), (107.5, 122.5), (107.5, 125.5)])  # lines 8-11
add_polygon(sketch7, [(117.5, 125.5), (117.5, 122.5), (127.5, 122.5), (127.5, 125.5)])  # lines 12-15
add_polygon(sketch7, [(137.5, 125.5), (137.5, 122.5), (147.5, 122.5), (147.5, 125.5)])  # lines 16-19
add_polygon(sketch7, [(157.5, 125.5), (157.5, 122.5), (167.5, 122.5), (167.5, 125.5)])  # lines 20-23
add_polygon(sketch7, [(57.5, 12.5), (57.5, 9.5), (67.5, 9.5), (67.5, 12.5)])  # lines 24-27
add_polygon(sketch7, [(77.5, 12.5), (77.5, 9.5), (87.5, 9.5), (87.5, 12.5)])  # lines 28-31
add_polygon(sketch7, [(97.5, 12.5), (97.5, 9.5), (107.5, 9.5), (107.5, 12.5)])  # lines 32-35
add_polygon(sketch7, [(117.5, 12.5), (117.5, 9.5), (127.5, 9.5), (127.5, 12.5)])  # lines 36-39
add_polygon(sketch7, [(137.5, 12.5), (137.5, 9.5), (147.5, 9.5), (147.5, 12.5)])  # lines 40-43
add_polygon(sketch7, [(157.5, 12.5), (157.5, 9.5), (167.5, 9.5), (167.5, 12.5)])  # lines 44-47
sketch7.addConstraint(Sketcher.Constraint("Vertical", 0))
sketch7.addConstraint(Sketcher.Constraint("Horizontal", 1))
sketch7.addConstraint(Sketcher.Constraint("Vertical", 2))
sketch7.addConstraint(Sketcher.Constraint("Horizontal", 3))
sketch7.addConstraint(Sketcher.Constraint("Vertical", 4))
sketch7.addConstraint(Sketcher.Constraint("Horizontal", 5))
sketch7.addConstraint(Sketcher.Constraint("Vertical", 6))
sketch7.addConstraint(Sketcher.Constraint("Horizontal", 7))
sketch7.addConstraint(Sketcher.Constraint("Vertical", 8))
sketch7.addConstraint(Sketcher.Constraint("Horizontal", 9))
sketch7.addConstraint(Sketcher.Constraint("Vertical", 10))
sketch7.addConstraint(Sketcher.Constraint("Horizontal", 11))
sketch7.addConstraint(Sketcher.Constraint("Vertical", 12))
sketch7.addConstraint(Sketcher.Constraint("Horizontal", 13))
sketch7.addConstraint(Sketcher.Constraint("Vertical", 14))
sketch7.addConstraint(Sketcher.Constraint("Horizontal", 15))
sketch7.addConstraint(Sketcher.Constraint("Vertical", 16))
sketch7.addConstraint(Sketcher.Constraint("Horizontal", 17))
sketch7.addConstraint(Sketcher.Constraint("Vertical", 18))
sketch7.addConstraint(Sketcher.Constraint("Horizontal", 19))
sketch7.addConstraint(Sketcher.Constraint("Vertical", 20))
sketch7.addConstraint(Sketcher.Constraint("Horizontal", 21))
sketch7.addConstraint(Sketcher.Constraint("Vertical", 22))
sketch7.addConstraint(Sketcher.Constraint("Horizontal", 23))
sketch7.addConstraint(Sketcher.Constraint("Vertical", 24))
sketch7.addConstraint(Sketcher.Constraint("Horizontal", 25))
sketch7.addConstraint(Sketcher.Constraint("Vertical", 26))
sketch7.addConstraint(Sketcher.Constraint("Horizontal", 27))
sketch7.addConstraint(Sketcher.Constraint("Vertical", 28))
sketch7.addConstraint(Sketcher.Constraint("Horizontal", 29))
sketch7.addConstraint(Sketcher.Constraint("Vertical", 30))
sketch7.addConstraint(Sketcher.Constraint("Horizontal", 31))
sketch7.addConstraint(Sketcher.Constraint("Vertical", 32))
sketch7.addConstraint(Sketcher.Constraint("Horizontal", 33))
sketch7.addConstraint(Sketcher.Constraint("Vertical", 34))
sketch7.addConstraint(Sketcher.Constraint("Horizontal", 35))
sketch7.addConstraint(Sketcher.Constraint("Vertical", 36))
sketch7.addConstraint(Sketcher.Constraint("Horizontal", 37))
sketch7.addConstraint(Sketcher.Constraint("Vertical", 38))
sketch7.addConstraint(Sketcher.Constraint("Horizontal", 39))
sketch7.addConstraint(Sketcher.Constraint("Vertical", 40))
sketch7.addConstraint(Sketcher.Constraint("Horizontal", 41))
sketch7.addConstraint(Sketcher.Constraint("Vertical", 42))
sketch7.addConstraint(Sketcher.Constraint("Horizontal", 43))
sketch7.addConstraint(Sketcher.Constraint("Vertical", 44))
sketch7.addConstraint(Sketcher.Constraint("Horizontal", 45))
sketch7.addConstraint(Sketcher.Constraint("Vertical", 46))
sketch7.addConstraint(Sketcher.Constraint("Horizontal", 47))
sketch7.addConstraint(Sketcher.Constraint("Horizontal", 1, 2, 4, 2))
sketch7.addConstraint(Sketcher.Constraint("Horizontal", 3, 2, 6, 2))
sketch7.addConstraint(Sketcher.Constraint("Horizontal", 5, 2, 8, 2))
sketch7.addConstraint(Sketcher.Constraint("Horizontal", 7, 2, 10, 2))
sketch7.addConstraint(Sketcher.Constraint("Horizontal", 9, 2, 12, 2))
sketch7.addConstraint(Sketcher.Constraint("Horizontal", 11, 2, 14, 2))
sketch7.addConstraint(Sketcher.Constraint("Horizontal", 13, 2, 16, 2))
sketch7.addConstraint(Sketcher.Constraint("Horizontal", 15, 2, 18, 2))
sketch7.addConstraint(Sketcher.Constraint("Horizontal", 17, 2, 20, 2))
sketch7.addConstraint(Sketcher.Constraint("Horizontal", 19, 2, 22, 2))
sketch7.addConstraint(Sketcher.Constraint("Horizontal", 25, 2, 28, 2))
sketch7.addConstraint(Sketcher.Constraint("Horizontal", 27, 2, 30, 2))
sketch7.addConstraint(Sketcher.Constraint("Horizontal", 29, 2, 32, 2))
sketch7.addConstraint(Sketcher.Constraint("Horizontal", 31, 2, 34, 2))
sketch7.addConstraint(Sketcher.Constraint("Horizontal", 33, 2, 36, 2))
sketch7.addConstraint(Sketcher.Constraint("Horizontal", 35, 2, 38, 2))
sketch7.addConstraint(Sketcher.Constraint("Horizontal", 37, 2, 40, 2))
sketch7.addConstraint(Sketcher.Constraint("Horizontal", 39, 2, 42, 2))
sketch7.addConstraint(Sketcher.Constraint("Horizontal", 41, 2, 44, 2))
sketch7.addConstraint(Sketcher.Constraint("Horizontal", 43, 2, 46, 2))
sketch7.addConstraint(Sketcher.Constraint("Vertical", 3, 2, 24, 2))
sketch7.addConstraint(Sketcher.Constraint("Vertical", 2, 2, 25, 2))
sketch7.addConstraint(Sketcher.Constraint("Vertical", 7, 2, 28, 2))
sketch7.addConstraint(Sketcher.Constraint("Vertical", 6, 2, 29, 2))
sketch7.addConstraint(Sketcher.Constraint("Vertical", 11, 2, 32, 2))
sketch7.addConstraint(Sketcher.Constraint("Vertical", 10, 2, 33, 2))
sketch7.addConstraint(Sketcher.Constraint("Vertical", 15, 2, 36, 2))
sketch7.addConstraint(Sketcher.Constraint("Vertical", 14, 2, 37, 2))
sketch7.addConstraint(Sketcher.Constraint("Vertical", 19, 2, 40, 2))
sketch7.addConstraint(Sketcher.Constraint("Vertical", 18, 2, 41, 2))
sketch7.addConstraint(Sketcher.Constraint("Vertical", 23, 2, 44, 2))
sketch7.addConstraint(Sketcher.Constraint("Vertical", 22, 2, 45, 2))
sketch7.addConstraint(Sketcher.Constraint("Equal", 3, 5))
sketch7.addConstraint(Sketcher.Constraint("Equal", 7, 9))
sketch7.addConstraint(Sketcher.Constraint("Equal", 11, 13))
sketch7.addConstraint(Sketcher.Constraint("Equal", 15, 17))
sketch7.addConstraint(Sketcher.Constraint("Equal", 19, 21))
sketch7.addConstraint(Sketcher.Constraint("Equal", 22, 24))
sketch7.addConstraint(Sketcher.Constraint("DistanceX", 1, 1, 1, 2, Q("10 mm")))
sketch7.addConstraint(Sketcher.Constraint("DistanceY", 0, 2, 0, 1, Q("3 mm")))
sketch7.addConstraint(Sketcher.Constraint("DistanceX", 1, 2, 4, 2, Q("10 mm")))
sketch7.addConstraint(Sketcher.Constraint("DistanceX", 5, 2, 8, 2, Q("10 mm")))
sketch7.addConstraint(Sketcher.Constraint("DistanceX", 9, 2, 12, 2, Q("10 mm")))
sketch7.addConstraint(Sketcher.Constraint("DistanceX", 13, 2, 16, 2, Q("10 mm")))
sketch7.addConstraint(Sketcher.Constraint("DistanceX", 17, 2, 20, 2, Q("10 mm")))
sketch7.addConstraint(Sketcher.Constraint("DistanceY", 24, 2, 0, 2, Q("113 mm")))
sketch7.addConstraint(Sketcher.Constraint("DistanceX", -1, 1, 0, 2, Q("57.5 mm")))
sketch7.addConstraint(Sketcher.Constraint("DistanceY", -1, 1, 0, 2, Q("122.5 mm")))
pocket3 = body.newObject("PartDesign::Pocket", "Pocket002")
pocket3.Profile = sketch7
pocket3.Length = 3

doc.recompute()
